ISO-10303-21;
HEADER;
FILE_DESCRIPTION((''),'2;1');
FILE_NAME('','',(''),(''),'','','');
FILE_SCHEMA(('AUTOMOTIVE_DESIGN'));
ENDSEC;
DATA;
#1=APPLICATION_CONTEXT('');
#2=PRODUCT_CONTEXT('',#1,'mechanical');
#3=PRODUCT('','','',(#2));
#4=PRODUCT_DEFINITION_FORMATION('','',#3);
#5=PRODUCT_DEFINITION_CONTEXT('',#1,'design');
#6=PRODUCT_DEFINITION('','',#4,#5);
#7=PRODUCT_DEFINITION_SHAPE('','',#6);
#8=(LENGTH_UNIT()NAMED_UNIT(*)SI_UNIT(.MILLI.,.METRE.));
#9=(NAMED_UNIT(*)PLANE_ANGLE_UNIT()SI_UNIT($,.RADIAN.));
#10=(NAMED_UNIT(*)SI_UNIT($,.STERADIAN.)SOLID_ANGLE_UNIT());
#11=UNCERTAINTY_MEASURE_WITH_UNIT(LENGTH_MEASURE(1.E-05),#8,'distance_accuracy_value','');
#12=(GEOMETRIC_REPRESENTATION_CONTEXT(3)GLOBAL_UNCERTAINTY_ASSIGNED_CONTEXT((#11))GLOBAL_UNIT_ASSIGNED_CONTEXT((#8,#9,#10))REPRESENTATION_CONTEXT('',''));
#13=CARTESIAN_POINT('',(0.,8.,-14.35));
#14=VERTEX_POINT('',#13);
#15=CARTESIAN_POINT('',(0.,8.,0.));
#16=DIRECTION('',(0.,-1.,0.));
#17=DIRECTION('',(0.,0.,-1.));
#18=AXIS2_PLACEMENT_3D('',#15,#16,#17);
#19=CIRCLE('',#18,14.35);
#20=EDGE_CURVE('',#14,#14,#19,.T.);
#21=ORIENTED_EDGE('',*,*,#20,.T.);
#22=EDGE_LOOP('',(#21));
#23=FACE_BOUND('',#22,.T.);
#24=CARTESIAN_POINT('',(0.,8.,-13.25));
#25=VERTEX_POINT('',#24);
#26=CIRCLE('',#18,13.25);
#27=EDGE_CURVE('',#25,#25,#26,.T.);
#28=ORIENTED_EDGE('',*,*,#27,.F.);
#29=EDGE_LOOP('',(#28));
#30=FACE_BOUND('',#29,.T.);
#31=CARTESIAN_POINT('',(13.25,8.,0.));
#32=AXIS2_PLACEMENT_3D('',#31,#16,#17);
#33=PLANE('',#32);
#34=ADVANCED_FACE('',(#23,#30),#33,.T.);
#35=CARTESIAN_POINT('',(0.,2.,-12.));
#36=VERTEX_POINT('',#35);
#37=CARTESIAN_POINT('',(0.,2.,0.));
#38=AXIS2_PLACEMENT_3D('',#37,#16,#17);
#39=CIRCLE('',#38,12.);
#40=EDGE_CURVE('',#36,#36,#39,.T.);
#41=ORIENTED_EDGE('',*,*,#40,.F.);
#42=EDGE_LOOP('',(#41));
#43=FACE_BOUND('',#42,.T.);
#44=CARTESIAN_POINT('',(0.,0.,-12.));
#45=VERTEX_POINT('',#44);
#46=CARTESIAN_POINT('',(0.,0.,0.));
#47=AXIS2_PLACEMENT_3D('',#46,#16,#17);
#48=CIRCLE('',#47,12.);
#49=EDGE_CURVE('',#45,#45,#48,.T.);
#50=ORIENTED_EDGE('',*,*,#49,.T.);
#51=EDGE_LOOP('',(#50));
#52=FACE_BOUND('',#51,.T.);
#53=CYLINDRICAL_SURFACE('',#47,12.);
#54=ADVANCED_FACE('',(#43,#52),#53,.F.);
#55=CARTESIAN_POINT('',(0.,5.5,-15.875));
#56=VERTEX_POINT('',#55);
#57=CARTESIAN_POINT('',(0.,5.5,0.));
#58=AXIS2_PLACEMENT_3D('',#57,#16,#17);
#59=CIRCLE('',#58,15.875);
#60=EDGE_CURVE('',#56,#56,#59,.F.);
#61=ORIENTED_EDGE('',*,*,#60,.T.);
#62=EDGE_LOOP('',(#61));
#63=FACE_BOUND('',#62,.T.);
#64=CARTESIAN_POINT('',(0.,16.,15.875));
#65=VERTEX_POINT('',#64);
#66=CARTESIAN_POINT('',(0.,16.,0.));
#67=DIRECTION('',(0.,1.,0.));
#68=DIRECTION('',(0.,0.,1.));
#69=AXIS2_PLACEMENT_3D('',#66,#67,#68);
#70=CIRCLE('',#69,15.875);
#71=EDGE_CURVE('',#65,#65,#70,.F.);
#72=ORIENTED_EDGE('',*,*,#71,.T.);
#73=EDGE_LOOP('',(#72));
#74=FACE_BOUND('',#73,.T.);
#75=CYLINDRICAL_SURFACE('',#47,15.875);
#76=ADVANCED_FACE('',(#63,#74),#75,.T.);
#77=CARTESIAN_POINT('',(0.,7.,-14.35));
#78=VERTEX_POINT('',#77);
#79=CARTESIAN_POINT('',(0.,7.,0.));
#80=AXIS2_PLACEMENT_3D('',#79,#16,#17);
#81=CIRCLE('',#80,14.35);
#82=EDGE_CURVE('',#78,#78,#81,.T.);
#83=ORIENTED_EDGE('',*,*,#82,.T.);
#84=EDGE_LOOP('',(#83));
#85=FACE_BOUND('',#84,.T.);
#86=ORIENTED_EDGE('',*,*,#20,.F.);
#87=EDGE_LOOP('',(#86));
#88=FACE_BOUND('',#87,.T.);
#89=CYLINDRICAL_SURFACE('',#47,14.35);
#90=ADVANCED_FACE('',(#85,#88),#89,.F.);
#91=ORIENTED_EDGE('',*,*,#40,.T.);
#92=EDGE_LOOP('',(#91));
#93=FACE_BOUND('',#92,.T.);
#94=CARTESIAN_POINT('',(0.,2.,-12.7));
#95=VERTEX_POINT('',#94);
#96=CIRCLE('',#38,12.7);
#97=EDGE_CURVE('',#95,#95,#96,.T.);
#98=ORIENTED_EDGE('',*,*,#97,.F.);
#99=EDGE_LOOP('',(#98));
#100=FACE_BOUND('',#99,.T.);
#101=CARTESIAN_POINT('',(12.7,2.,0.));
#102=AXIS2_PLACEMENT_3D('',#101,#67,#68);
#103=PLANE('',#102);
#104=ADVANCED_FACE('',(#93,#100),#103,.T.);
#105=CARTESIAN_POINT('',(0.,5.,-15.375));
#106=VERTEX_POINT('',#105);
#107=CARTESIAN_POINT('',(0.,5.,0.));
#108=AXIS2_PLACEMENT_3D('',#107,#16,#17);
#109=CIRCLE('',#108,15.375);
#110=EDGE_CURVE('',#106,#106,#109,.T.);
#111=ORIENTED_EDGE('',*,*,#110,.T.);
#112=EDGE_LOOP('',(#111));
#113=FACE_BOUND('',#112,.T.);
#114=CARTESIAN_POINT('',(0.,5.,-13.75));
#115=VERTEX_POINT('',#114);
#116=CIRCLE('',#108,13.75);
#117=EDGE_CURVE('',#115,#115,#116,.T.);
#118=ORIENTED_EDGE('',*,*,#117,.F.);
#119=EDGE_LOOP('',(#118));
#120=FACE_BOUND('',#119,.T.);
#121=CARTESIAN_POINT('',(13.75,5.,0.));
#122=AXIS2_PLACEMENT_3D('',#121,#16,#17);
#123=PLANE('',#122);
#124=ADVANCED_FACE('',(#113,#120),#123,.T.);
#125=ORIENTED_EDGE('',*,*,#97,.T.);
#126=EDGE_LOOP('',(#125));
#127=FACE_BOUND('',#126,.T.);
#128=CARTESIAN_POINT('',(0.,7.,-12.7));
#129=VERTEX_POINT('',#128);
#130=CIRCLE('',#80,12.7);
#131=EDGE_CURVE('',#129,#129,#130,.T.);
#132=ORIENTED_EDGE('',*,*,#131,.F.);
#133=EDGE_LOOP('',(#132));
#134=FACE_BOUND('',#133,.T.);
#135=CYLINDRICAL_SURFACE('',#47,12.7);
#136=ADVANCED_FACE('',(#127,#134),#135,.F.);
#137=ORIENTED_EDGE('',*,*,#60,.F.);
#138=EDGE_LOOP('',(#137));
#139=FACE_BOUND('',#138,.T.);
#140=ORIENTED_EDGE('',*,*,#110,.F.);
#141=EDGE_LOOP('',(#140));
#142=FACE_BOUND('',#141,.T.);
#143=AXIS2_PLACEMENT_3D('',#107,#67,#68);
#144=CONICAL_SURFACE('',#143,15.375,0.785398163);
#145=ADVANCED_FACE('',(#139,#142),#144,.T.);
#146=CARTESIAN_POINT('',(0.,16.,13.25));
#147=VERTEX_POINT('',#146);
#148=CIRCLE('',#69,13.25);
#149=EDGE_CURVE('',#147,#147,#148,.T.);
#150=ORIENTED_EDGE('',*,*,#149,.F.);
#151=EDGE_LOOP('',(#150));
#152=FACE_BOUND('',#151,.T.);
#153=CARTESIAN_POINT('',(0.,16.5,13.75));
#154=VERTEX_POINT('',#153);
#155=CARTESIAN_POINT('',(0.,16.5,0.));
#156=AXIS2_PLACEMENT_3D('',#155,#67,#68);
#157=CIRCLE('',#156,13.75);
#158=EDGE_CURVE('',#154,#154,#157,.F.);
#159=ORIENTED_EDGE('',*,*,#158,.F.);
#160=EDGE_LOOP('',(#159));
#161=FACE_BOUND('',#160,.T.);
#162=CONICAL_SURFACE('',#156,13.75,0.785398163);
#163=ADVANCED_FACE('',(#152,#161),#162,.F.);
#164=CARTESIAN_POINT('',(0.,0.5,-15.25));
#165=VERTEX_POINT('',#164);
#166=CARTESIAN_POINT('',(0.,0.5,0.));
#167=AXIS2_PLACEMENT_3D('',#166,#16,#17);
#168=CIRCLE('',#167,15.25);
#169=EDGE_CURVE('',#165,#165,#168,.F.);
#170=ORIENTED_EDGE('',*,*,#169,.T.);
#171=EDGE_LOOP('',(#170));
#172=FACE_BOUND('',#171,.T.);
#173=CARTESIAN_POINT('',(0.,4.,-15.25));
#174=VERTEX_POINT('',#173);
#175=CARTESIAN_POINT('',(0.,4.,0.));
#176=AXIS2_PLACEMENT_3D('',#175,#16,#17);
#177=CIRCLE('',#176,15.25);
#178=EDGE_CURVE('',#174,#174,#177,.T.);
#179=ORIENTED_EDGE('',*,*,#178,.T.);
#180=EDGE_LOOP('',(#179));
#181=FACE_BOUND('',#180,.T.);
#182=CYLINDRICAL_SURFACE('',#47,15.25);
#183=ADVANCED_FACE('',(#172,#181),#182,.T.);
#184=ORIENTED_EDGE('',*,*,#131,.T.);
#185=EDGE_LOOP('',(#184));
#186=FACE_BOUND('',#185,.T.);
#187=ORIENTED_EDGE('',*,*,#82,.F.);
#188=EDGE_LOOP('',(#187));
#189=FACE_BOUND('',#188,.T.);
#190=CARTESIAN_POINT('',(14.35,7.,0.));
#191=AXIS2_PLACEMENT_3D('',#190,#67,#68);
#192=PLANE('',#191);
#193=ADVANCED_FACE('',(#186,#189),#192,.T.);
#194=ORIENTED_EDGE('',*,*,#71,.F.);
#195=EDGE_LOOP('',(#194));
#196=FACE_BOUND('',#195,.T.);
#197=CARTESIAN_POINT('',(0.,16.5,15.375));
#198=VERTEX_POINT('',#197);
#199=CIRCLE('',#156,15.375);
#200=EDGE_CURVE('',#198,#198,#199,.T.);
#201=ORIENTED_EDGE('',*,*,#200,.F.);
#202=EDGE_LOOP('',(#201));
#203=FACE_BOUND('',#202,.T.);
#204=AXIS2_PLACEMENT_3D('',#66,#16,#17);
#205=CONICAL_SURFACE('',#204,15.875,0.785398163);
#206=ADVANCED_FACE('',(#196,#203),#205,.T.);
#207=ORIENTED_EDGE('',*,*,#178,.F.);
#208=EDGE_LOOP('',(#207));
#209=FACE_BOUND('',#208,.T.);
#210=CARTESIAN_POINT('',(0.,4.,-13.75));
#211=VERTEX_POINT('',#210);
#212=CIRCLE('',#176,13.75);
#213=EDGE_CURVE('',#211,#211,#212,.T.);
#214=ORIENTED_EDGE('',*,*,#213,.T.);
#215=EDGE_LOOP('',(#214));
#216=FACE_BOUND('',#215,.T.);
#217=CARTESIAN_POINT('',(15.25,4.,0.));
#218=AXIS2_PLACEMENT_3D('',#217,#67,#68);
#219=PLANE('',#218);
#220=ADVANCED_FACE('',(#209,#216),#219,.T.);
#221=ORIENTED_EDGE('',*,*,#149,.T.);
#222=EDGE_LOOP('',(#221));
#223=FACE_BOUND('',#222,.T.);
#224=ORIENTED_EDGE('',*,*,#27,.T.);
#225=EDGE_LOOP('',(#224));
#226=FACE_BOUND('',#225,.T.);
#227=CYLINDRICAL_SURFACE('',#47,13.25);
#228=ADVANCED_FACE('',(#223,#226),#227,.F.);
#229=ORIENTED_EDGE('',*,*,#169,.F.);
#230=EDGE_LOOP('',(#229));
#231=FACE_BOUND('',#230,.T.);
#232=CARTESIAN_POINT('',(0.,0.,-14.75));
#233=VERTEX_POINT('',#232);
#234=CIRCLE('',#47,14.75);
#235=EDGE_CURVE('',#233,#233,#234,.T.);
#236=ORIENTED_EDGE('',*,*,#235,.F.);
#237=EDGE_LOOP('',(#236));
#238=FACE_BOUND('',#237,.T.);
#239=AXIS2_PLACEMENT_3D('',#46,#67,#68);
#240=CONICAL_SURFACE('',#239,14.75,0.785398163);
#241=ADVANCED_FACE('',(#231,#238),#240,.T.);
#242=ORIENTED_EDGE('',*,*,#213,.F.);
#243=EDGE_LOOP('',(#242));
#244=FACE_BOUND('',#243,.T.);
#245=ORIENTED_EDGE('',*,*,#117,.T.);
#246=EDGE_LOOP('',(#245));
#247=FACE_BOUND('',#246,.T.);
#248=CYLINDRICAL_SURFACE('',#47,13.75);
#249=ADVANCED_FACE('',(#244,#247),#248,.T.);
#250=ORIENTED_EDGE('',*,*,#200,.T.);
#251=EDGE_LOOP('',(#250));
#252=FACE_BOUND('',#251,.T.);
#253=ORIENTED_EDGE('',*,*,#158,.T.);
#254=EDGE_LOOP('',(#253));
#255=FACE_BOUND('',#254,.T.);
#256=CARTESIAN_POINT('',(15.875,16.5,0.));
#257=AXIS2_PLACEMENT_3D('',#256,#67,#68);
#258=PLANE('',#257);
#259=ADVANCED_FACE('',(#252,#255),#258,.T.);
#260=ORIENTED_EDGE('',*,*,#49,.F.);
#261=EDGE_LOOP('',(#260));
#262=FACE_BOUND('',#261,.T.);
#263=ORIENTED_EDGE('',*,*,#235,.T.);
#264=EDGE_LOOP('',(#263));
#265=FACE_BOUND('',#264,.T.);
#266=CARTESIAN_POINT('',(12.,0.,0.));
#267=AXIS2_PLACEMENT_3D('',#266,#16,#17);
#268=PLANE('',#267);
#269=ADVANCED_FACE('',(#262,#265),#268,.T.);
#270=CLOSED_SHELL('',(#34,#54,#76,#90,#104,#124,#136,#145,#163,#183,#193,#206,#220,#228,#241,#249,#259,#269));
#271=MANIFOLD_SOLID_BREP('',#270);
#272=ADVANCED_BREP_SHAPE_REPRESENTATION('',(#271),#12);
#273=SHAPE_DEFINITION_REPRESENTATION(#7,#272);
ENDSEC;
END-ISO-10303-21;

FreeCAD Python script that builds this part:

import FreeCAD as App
import Part
import Sketcher

V = App.Vector
Q = App.Units.Quantity


def edges_at(feature, points):
    """Names of the edges that pass closest to the given points."""
    edges = feature.Shape.Edges
    near = lambda p: min(range(len(edges)), key=lambda i: edges[i].distToShape(Part.Vertex(*p))[0])
    return sorted({f"Edge{near(p) + 1}" for p in points})


def add_polygon(sketch, points):
    """Adds a closed chain of lines whose ends are joined by coincident constraints."""
    first, n = sketch.GeometryCount, len(points)
    for a, b in zip(points, points[1:] + points[:1]):
        sketch.addGeometry(Part.LineSegment(App.Vector(*a, 0), App.Vector(*b, 0)), False)
    for i in range(n):
        sketch.addConstraint(Sketcher.Constraint("Coincident", first + i, 2, first + (i + 1) % n, 1))

doc = App.newDocument("Part")
params = doc.addObject("Spreadsheet::Sheet", "Params")
for row, (alias, value) in enumerate([
    ("sketch1_height", "4 mm"),
    ("sketch1_height2", "1 mm"),
    ("sketch1_height3", "5 mm"),
    ("sketch1_height4", "2 mm"),
    ("sketch1_width", "1.5 mm"),
    ("revolution_angle", "360 deg"),
    ("chamfer_size", "0.5 mm"),
], start=1):
    params.set(f"A{row}", alias)
    params.set(f"B{row}", "=" + value)
    params.setAlias(f"B{row}", alias)

body = doc.addObject("PartDesign::Body", "Body")

sketch1 = body.newObject("Sketcher::SketchObject", "Sketch")
sketch1.AttachmentSupport = (doc.getObject("XY_Plane"), [""])
sketch1.MapMode = "FlatFace"
add_polygon(sketch1, [(12, 0), (15.25, 0), (15.25, 4), (13.75, 4), (13.75, 5), (15.875, 5), (15.875, 16.5), (13.25, 16.5), (13.25, 8), (14.35, 8), (14.35, 7), (12.7, 7), (12.7, 2), (12, 2)])
sketch1.addConstraint([
    Sketcher.Constraint("Horizontal", 0),
    Sketcher.Constraint("Vertical", 1),
    Sketcher.Constraint("Horizontal", 2),
    Sketcher.Constraint("Vertical", 3),
    Sketcher.Constraint("Horizontal", 4),
    Sketcher.Constraint("Vertical", 5),
    Sketcher.Constraint("Horizontal", 6),
    Sketcher.Constraint("Vertical", 7),
    Sketcher.Constraint("Horizontal", 8),
    Sketcher.Constraint("Vertical", 9),
    Sketcher.Constraint("Horizontal", 10),
    Sketcher.Constraint("Vertical", 11),
    Sketcher.Constraint("Horizontal", 12),
    Sketcher.Constraint("Vertical", 13),
    Sketcher.Constraint("PointOnObject", 0, 2, -1),
    Sketcher.Constraint("Equal", 3, 9),
    Sketcher.Constraint("DistanceY", 1, 1, 1, 2, Q("4 mm")),
    Sketcher.Constraint("DistanceY", 3, 1, 3, 2, Q("1 mm")),
    Sketcher.Constraint("DistanceY", 11, 2, 11, 1, Q("5 mm")),
    Sketcher.Constraint("DistanceY", 13, 2, 13, 1, Q("2 mm")),
    Sketcher.Constraint("DistanceX", 2, 2, 2, 1, Q("1.5 mm")),
    Sketcher.Constraint("DistanceX", 8, 1, 8, 2, Q("1.1 mm")),
    Sketcher.Constraint("DistanceX", 12, 2, 12, 1, Q("0.7 mm")),
    Sketcher.Constraint("DistanceY", 5, 1, 5, 2, Q("11.5 mm")),
    Sketcher.Constraint("DistanceX", -1, 1, 12, 2, Q("12 mm")),
    Sketcher.Constraint("DistanceX", 6, 2, 1, 2, Q("2 mm")),
    Sketcher.Constraint("DistanceX", 0, 1, 0, 2, Q("3.25 mm")),
    Sketcher.Constraint("DistanceX", 4, 1, 4, 2, Q("2.125 mm")),
])
sketch1.setExpression("Constraints[30]", "Params.sketch1_height")
sketch1.setExpression("Constraints[31]", "Params.sketch1_height2")
sketch1.setExpression("Constraints[32]", "Params.sketch1_height3")
sketch1.setExpression("Constraints[33]", "Params.sketch1_height4")
sketch1.setExpression("Constraints[34]", "Params.sketch1_width")
revolution = body.newObject("PartDesign::Revolution", "Revolution")
revolution.Profile = sketch1
revolution.ReferenceAxis = (sketch1, ["V_Axis"])
revolution.setExpression("Angle", "Params.revolution_angle")
doc.recompute()

chamfer = body.newObject("PartDesign::Chamfer", "Chamfer")
chamfer.Base = (revolution, edges_at(revolution, [
    (0, 16.5, 13.25),
    (0, 16.5, 15.875),
    (0, 5, 15.875),
    (0, 0, 15.25),
]))
chamfer.setExpression("Size", "Params.chamfer_size")

doc.recompute()
